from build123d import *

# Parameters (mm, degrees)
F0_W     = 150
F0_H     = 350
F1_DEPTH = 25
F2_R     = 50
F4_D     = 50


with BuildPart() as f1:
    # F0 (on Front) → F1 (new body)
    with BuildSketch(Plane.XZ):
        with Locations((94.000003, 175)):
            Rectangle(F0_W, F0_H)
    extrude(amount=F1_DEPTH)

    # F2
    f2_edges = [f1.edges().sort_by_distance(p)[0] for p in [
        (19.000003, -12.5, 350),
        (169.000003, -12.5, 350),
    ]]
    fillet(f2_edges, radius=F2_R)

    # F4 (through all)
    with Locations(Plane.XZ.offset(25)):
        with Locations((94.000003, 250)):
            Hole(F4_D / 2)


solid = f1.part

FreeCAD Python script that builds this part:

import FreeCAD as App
import Part
import Sketcher
Q = App.Units.Quantity


def edges_at(feature, points):
    """Names of the edges that pass closest to the given points."""
    edges = feature.Shape.Edges
    near = lambda p: min(range(len(edges)), key=lambda i: edges[i].distToShape(Part.Vertex(*p))[0])
    return sorted({f"Edge{near(p) + 1}" for p in points})

doc = App.newDocument("Part")
body = doc.addObject("PartDesign::Body", "Body")

# Sketch on XZ plane
sketch1 = body.newObject("Sketcher::SketchObject", "Sketch")
sketch1.AttachmentSupport = (doc.getObject("XZ_Plane"), [""])
sketch1.MapMode = "FlatFace"
sketch1.addGeometry([
    Part.LineSegment(App.Vector(19, 350, 0), App.Vector(19, 0, 0)),
    Part.LineSegment(App.Vector(19, 0, 0), App.Vector(169, 0, 0)),
    Part.LineSegment(App.Vector(169, 0, 0), App.Vector(169, 350, 0)),
    Part.LineSegment(App.Vector(169, 350, 0), App.Vector(19, 350, 0)),
], False)
sketch1.addConstraint([
    Sketcher.Constraint("Coincident", 0, 2, 1, 1),
    Sketcher.Constraint("Coincident", 1, 2, 2, 1),
    Sketcher.Constraint("Coincident", 2, 2, 3, 1),
    Sketcher.Constraint("Coincident", 3, 2, 0, 1),
    Sketcher.Constraint("Vertical", 0),
    Sketcher.Constraint("Horizontal", 1),
    Sketcher.Constraint("Vertical", 2),
    Sketcher.Constraint("Horizontal", 3),
    Sketcher.Constraint("PointOnObject", 0, 2, -1),
    Sketcher.Constraint("DistanceX", 1, 1, 1, 2, Q("150 mm")),
    Sketcher.Constraint("DistanceY", 0, 2, 0, 1, Q("350 mm")),
    Sketcher.Constraint("DistanceX", -1, 1, 0, 2, Q("19.000003 mm")),
])
pad1 = body.newObject("PartDesign::Pad", "Pad")
pad1.Profile = sketch1
pad1.Length = 25
doc.recompute()

fillet = body.newObject("PartDesign::Fillet", "Fillet")
fillet.Base = (pad1, edges_at(pad1, [(19, -12.5, 350), (169, -12.5, 350)]))
fillet.Radius = 50

# Sketch on XZ plane
sketch2 = body.newObject("Sketcher::SketchObject", "Sketch001")
sketch2.AttachmentSupport = (doc.getObject("XZ_Plane"), [""])
sketch2.MapMode = "FlatFace"
sketch2.AttachmentOffset = App.Placement(App.Vector(0, 0, 25), App.Rotation())
sketch2.addGeometry(Part.Circle(App.Vector(94, 250, 0), App.Vector(0, 0, 1), 25), False)
sketch2.addConstraint([
    Sketcher.Constraint("Diameter", 0, Q("50 mm")),
    Sketcher.Constraint("DistanceY", -1, 1, 0, 3, Q("250 mm")),
    Sketcher.Constraint("DistanceX", -1, 1, 0, 3, Q("94.000003 mm")),
])
doc.recompute()
hole = body.newObject("PartDesign::Hole", "Hole")
hole.Profile = sketch2
hole.ThreadType = "None"
hole.Diameter = 50
hole.DepthType = "ThroughAll"

doc.recompute()
